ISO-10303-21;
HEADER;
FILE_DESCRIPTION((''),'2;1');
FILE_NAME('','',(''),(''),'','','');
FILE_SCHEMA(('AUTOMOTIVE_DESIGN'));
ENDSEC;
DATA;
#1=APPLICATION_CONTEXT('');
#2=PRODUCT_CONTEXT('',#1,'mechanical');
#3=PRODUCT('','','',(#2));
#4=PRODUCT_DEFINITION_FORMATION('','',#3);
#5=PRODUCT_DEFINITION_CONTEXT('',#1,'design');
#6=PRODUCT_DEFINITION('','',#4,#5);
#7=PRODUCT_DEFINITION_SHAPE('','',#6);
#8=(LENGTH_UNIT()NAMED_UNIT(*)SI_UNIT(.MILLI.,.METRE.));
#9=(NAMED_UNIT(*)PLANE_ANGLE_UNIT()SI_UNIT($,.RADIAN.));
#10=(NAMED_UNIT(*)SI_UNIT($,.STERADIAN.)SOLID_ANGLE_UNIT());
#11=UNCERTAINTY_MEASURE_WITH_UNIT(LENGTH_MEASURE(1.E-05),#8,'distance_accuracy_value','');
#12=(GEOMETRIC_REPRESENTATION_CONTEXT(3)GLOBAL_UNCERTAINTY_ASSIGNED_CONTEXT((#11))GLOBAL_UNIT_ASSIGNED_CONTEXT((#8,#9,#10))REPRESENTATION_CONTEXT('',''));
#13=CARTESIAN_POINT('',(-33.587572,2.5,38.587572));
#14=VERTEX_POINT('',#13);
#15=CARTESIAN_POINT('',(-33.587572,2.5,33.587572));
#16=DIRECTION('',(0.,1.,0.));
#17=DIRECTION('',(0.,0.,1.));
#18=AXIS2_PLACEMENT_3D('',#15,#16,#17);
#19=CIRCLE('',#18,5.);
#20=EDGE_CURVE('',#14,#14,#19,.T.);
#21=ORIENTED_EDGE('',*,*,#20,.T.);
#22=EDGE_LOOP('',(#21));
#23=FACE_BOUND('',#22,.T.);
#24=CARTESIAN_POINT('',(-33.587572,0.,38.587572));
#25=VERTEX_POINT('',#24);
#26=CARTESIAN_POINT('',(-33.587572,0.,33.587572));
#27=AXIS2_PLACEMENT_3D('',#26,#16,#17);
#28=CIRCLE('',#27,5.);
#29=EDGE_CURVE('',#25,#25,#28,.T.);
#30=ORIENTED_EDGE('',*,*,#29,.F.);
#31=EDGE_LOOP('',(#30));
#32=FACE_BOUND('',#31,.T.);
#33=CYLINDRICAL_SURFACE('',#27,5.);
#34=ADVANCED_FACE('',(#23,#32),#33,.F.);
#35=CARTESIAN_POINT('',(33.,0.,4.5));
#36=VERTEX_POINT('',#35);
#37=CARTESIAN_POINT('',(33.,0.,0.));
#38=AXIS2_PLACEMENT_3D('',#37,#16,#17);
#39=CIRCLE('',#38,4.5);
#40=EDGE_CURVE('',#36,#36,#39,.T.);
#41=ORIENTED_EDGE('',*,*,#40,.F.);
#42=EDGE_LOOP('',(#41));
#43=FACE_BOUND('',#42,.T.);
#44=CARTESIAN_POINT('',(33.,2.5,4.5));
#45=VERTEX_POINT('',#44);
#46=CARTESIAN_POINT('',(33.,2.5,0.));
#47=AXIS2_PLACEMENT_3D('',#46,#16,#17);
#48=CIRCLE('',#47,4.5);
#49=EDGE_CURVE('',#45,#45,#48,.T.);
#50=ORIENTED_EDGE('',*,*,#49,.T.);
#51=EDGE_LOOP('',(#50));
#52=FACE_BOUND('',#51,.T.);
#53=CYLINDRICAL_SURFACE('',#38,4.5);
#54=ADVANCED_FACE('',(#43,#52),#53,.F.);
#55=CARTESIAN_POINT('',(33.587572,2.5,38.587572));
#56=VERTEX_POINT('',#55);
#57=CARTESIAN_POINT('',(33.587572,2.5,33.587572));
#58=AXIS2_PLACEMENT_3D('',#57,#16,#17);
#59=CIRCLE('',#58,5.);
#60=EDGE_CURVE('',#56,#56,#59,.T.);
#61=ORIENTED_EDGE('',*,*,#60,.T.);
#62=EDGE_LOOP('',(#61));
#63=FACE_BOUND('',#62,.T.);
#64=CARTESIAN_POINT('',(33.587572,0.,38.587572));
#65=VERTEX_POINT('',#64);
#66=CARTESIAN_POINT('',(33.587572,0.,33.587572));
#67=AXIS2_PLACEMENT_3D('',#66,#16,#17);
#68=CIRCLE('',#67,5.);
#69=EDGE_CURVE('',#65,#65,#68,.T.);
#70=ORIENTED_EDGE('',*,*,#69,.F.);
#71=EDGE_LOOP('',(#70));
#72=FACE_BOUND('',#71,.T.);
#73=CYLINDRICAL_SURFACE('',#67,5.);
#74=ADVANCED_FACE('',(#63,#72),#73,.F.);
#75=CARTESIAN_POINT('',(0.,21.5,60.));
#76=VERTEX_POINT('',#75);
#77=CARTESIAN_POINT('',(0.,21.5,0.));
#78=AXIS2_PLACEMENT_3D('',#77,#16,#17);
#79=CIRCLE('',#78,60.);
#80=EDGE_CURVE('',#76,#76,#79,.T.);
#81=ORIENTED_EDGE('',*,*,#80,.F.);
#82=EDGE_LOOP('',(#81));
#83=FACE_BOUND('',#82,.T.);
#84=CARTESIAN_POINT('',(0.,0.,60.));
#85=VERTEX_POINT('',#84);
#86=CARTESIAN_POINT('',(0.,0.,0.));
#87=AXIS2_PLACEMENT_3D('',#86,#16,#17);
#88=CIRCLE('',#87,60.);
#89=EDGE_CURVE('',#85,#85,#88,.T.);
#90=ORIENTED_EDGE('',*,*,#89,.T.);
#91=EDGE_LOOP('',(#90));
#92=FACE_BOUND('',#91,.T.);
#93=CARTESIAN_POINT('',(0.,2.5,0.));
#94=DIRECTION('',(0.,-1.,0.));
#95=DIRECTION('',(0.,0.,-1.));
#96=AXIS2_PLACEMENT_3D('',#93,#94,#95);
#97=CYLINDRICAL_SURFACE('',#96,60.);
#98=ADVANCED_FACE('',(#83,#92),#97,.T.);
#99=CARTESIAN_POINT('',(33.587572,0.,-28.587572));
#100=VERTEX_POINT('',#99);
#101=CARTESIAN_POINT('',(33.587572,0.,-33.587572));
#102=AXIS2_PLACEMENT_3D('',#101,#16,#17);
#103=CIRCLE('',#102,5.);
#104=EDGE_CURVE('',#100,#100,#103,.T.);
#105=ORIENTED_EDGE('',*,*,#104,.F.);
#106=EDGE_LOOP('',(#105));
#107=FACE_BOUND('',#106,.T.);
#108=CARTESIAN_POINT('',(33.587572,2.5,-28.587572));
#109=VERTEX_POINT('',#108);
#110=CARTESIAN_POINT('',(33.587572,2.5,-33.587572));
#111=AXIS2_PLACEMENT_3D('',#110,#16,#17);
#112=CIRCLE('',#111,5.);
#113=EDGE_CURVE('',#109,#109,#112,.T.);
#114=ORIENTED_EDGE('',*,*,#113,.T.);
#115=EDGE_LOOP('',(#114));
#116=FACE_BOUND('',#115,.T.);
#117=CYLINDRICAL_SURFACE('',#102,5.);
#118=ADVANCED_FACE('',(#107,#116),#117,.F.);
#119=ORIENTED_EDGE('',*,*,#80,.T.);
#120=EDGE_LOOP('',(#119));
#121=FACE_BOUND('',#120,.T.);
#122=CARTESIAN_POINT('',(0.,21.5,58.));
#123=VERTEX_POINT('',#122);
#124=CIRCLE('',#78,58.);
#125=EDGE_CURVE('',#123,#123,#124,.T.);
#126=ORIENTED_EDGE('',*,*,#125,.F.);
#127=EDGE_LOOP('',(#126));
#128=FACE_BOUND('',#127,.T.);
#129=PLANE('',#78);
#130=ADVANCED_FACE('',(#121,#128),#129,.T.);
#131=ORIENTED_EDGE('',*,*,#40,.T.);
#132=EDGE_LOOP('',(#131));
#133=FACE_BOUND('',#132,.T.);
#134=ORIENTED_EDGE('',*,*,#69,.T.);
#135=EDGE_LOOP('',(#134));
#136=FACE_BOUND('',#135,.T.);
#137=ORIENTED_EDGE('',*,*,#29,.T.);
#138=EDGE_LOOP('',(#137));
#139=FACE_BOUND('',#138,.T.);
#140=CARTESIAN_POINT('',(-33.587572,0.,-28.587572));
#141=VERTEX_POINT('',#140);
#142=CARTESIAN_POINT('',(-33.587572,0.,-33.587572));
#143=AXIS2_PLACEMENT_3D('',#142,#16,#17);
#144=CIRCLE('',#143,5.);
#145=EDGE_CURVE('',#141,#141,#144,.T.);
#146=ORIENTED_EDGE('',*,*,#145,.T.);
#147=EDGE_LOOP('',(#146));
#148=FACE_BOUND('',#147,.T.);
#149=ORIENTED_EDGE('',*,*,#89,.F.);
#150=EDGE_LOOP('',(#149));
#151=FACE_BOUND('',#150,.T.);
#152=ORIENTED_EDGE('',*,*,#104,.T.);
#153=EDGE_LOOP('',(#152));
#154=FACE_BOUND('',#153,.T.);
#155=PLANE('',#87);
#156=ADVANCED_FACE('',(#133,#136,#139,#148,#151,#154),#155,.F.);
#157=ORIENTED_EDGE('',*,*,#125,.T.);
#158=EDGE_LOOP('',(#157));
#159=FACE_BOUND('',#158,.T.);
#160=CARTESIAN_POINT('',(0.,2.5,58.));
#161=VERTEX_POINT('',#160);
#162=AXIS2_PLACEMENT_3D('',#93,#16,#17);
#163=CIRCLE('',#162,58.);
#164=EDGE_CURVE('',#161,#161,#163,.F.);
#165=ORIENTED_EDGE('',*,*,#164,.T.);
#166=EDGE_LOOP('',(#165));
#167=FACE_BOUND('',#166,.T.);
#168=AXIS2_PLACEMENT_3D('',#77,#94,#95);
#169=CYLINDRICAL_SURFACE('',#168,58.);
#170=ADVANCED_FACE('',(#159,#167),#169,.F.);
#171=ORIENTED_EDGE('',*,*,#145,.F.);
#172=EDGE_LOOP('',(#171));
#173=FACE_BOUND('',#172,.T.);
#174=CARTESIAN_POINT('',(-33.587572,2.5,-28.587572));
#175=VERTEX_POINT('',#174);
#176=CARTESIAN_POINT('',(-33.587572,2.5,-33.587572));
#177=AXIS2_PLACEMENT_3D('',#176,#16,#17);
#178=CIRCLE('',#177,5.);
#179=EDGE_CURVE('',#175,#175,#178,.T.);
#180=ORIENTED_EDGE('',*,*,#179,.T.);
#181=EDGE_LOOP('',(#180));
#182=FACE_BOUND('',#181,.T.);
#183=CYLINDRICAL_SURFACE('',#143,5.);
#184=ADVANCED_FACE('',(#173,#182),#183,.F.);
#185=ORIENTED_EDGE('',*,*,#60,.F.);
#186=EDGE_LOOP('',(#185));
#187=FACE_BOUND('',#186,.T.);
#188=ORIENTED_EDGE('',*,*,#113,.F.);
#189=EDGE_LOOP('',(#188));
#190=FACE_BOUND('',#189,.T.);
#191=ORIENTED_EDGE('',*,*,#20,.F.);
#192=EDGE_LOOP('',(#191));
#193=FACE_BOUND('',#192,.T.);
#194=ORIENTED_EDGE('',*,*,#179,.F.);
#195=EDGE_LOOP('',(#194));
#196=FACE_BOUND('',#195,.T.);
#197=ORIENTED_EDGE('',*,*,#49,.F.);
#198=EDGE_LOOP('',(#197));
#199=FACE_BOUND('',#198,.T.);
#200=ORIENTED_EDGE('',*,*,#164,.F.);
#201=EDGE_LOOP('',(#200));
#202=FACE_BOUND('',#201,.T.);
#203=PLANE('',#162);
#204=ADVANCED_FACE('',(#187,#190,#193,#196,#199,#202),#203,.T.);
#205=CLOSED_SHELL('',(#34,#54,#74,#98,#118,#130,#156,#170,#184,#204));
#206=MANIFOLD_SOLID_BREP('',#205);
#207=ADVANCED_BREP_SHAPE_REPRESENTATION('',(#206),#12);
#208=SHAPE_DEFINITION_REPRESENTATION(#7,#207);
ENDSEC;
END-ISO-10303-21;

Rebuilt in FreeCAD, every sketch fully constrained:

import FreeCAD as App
import Part
import Sketcher
Q = App.Units.Quantity

doc = App.newDocument("Part")
params = doc.addObject("Spreadsheet::Sheet", "Params")
for row, (alias, value) in enumerate([
    ("sketch1_diameter", "120 mm"),
    ("pad1_length", "2.5 mm"),
    ("sketch2_diameter", "120 mm"),
    ("sketch2_diameter2", "116 mm"),
    ("pad2_length", "19 mm"),
    ("sketch3_diameter", "9 mm"),
    ("sketch3_diameter2", "10 mm"),
], start=1):
    params.set(f"A{row}", alias)
    params.set(f"B{row}", "=" + value)
    params.setAlias(f"B{row}", alias)

body = doc.addObject("PartDesign::Body", "Body")

# Sketch on XZ plane
sketch1 = body.newObject("Sketcher::SketchObject", "Sketch")
sketch1.AttachmentSupport = (doc.getObject("XZ_Plane"), [""])
sketch1.MapMode = "FlatFace"
sketch1.addGeometry(Part.Circle(App.Vector(0, 0, 0), App.Vector(0, 0, 1), 60), False)
sketch1.addConstraint(Sketcher.Constraint("Coincident", 0, 3, -1, 1))
sketch1.addConstraint(Sketcher.Constraint("Diameter", 0, Q("120 mm")))
sketch1.setExpression("Constraints[1]", "Params.sketch1_diameter")
pad1 = body.newObject("PartDesign::Pad", "Pad")
pad1.Profile = sketch1
pad1.setExpression("Length", "Params.pad1_length")
pad1.Reversed = True

# Sketch on XZ plane
sketch2 = body.newObject("Sketcher::SketchObject", "Sketch001")
sketch2.AttachmentSupport = (doc.getObject("XZ_Plane"), [""])
sketch2.MapMode = "FlatFace"
sketch2.AttachmentOffset = App.Placement(App.Vector(0, 0, -2.5), App.Rotation())
sketch2.addGeometry(Part.Circle(App.Vector(0, 0, 0), App.Vector(0, 0, 1), 60), False)
sketch2.addGeometry(Part.Circle(App.Vector(0, 0, 0), App.Vector(0, 0, 1), 58), False)
sketch2.addConstraint(Sketcher.Constraint("Coincident", 0, 3, -1, 1))
sketch2.addConstraint(Sketcher.Constraint("Coincident", 1, 3, -1, 1))
sketch2.addConstraint(Sketcher.Constraint("Diameter", 0, Q("120 mm")))
sketch2.addConstraint(Sketcher.Constraint("Diameter", 1, Q("116 mm")))
sketch2.setExpression("Constraints[2]", "Params.sketch2_diameter")
sketch2.setExpression("Constraints[3]", "Params.sketch2_diameter2")
pad2 = body.newObject("PartDesign::Pad", "Pad001")
pad2.Profile = sketch2
pad2.setExpression("Length", "Params.pad2_length")
pad2.Reversed = True

# Sketch on XZ plane
sketch3 = body.newObject("Sketcher::SketchObject", "Sketch002")
sketch3.AttachmentSupport = (doc.getObject("XZ_Plane"), [""])
sketch3.MapMode = "FlatFace"
sketch3.AttachmentOffset = App.Placement(App.Vector(0, 0, -2.5), App.Rotation())
sketch3.addGeometry(Part.Circle(App.Vector(33, 0, 0), App.Vector(0, 0, 1), 4.5), False)
sketch3.addGeometry(Part.Circle(App.Vector(33.587572, -33.587572, 0), App.Vector(0, 0, 1), 5), False)
sketch3.addGeometry(Part.Circle(App.Vector(33.587572, 33.587572, 0), App.Vector(0, 0, 1), 5), False)
sketch3.addGeometry(Part.Circle(App.Vector(-33.587572, 33.587572, 0), App.Vector(0, 0, 1), 5), False)
sketch3.addGeometry(Part.Circle(App.Vector(-33.587572, -33.587572, 0), App.Vector(0, 0, 1), 5), False)
sketch3.addConstraint(Sketcher.Constraint("Equal", 1, 2))
sketch3.addConstraint(Sketcher.Constraint("Equal", 2, 3))
sketch3.addConstraint(Sketcher.Constraint("Equal", 3, 4))
sketch3.addConstraint(Sketcher.Constraint("Symmetric", 1, 3, 3, 3, -1, 1))
sketch3.addConstraint(Sketcher.Constraint("Symmetric", 2, 3, 4, 3, -1, 1))
sketch3.addConstraint(Sketcher.Constraint("Symmetric", 2, 3, 3, 3, -2))
sketch3.addConstraint(Sketcher.Constraint("PointOnObject", 0, 3, -1))
sketch3.addConstraint(Sketcher.Constraint("Diameter", 0, Q("9 mm")))
sketch3.addConstraint(Sketcher.Constraint("Diameter", 1, Q("10 mm")))
sketch3.addConstraint(Sketcher.Constraint("DistanceX", -1, 1, 0, 3, Q("33 mm")))
sketch3.addConstraint(Sketcher.Constraint("DistanceX", -1, 1, 1, 3, Q("33.587572 mm")))
sketch3.addConstraint(Sketcher.Constraint("DistanceY", 1, 3, -1, 1, Q("33.587572 mm")))
sketch3.setExpression("Constraints[7]", "Params.sketch3_diameter")
sketch3.setExpression("Constraints[8]", "Params.sketch3_diameter2")
pocket1 = body.newObject("PartDesign::Pocket", "Pocket")
pocket1.Profile = sketch3
pocket1.Type = "ThroughAll"
pocket1.Reversed = True

doc.recompute()
